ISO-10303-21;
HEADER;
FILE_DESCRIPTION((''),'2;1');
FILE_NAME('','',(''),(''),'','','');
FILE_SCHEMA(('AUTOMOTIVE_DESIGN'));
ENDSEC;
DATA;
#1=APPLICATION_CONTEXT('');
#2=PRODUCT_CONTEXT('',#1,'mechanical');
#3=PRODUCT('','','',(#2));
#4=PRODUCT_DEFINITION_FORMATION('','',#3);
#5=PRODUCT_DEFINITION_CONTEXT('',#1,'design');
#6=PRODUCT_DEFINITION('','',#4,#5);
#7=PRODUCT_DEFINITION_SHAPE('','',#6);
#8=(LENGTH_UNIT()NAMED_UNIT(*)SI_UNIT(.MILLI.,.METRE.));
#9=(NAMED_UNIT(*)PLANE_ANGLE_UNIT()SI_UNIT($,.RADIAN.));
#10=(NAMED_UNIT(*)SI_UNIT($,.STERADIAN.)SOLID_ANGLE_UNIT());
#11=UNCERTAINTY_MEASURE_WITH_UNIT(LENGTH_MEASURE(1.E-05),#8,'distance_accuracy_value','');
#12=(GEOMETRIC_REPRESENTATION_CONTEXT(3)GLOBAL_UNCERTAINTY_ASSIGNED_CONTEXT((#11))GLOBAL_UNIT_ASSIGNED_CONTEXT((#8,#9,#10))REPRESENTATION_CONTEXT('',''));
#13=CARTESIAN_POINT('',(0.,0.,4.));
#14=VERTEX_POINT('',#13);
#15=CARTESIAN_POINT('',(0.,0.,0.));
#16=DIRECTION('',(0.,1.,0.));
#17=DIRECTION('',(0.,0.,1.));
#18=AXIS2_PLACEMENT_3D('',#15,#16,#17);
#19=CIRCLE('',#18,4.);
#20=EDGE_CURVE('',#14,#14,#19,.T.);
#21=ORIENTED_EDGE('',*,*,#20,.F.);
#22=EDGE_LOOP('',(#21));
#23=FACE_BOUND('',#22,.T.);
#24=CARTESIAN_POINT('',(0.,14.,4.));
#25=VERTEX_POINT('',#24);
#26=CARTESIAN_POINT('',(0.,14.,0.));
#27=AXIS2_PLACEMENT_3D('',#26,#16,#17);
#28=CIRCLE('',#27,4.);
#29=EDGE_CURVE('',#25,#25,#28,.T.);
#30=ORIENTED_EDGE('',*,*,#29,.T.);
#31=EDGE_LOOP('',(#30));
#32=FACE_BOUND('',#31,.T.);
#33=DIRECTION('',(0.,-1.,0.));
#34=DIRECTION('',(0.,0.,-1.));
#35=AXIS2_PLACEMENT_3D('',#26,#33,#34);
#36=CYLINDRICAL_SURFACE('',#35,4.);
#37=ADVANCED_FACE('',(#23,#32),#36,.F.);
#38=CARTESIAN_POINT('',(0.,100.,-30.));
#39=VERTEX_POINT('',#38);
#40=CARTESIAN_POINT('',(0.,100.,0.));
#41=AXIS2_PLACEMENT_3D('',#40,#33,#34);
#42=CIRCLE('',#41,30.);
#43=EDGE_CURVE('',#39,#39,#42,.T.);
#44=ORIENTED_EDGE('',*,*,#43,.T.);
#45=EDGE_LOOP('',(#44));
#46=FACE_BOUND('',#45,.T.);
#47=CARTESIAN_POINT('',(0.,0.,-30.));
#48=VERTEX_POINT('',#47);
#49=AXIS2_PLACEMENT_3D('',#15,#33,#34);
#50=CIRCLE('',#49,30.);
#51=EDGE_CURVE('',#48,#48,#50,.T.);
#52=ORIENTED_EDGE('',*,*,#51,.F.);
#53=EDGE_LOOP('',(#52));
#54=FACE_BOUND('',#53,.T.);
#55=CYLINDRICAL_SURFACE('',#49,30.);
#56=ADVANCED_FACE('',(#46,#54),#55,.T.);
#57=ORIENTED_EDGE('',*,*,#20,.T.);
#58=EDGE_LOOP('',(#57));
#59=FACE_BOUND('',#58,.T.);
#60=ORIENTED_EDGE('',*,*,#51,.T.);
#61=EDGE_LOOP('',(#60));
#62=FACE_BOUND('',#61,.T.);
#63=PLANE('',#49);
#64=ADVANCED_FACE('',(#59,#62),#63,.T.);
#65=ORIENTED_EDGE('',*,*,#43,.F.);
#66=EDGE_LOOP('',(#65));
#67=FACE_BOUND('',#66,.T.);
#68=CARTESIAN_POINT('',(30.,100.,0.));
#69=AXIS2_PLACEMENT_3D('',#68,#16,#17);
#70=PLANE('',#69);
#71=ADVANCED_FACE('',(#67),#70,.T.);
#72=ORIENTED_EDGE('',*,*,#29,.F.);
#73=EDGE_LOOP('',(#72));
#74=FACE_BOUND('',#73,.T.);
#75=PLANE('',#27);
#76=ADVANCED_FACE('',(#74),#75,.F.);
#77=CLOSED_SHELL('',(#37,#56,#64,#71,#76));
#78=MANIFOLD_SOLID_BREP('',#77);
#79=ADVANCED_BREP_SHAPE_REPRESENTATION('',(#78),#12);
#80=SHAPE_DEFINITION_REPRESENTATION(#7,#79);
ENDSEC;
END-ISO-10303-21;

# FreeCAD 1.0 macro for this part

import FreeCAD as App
import Part
import Sketcher
from FreeCAD import Vector

doc = App.newDocument("Part")
body = doc.addObject("PartDesign::Body", "Body")

# Sketch on XY plane
sketch1 = body.newObject("Sketcher::SketchObject", "Sketch")
sketch1.AttachmentSupport = (doc.getObject("XY_Plane"), [""])
sketch1.MapMode = "FlatFace"
sketch1.addGeometry(Part.LineSegment(Vector(0, 100, 0), Vector(0, 0, 0)), False)
sketch1.addGeometry(Part.LineSegment(Vector(0, 0, 0), Vector(30, 0, 0)), False)
sketch1.addGeometry(Part.LineSegment(Vector(30, 0, 0), Vector(30, 100, 0)), False)
sketch1.addGeometry(Part.LineSegment(Vector(30, 100, 0), Vector(0, 100, 0)), False)
sketch1.addConstraint(Sketcher.Constraint("Coincident", 0, 2, 1, 1))
sketch1.addConstraint(Sketcher.Constraint("Coincident", 1, 2, 2, 1))
sketch1.addConstraint(Sketcher.Constraint("Coincident", 2, 2, 3, 1))
sketch1.addConstraint(Sketcher.Constraint("Coincident", 3, 2, 0, 1))
sketch1.addConstraint(Sketcher.Constraint("Vertical", 0))
sketch1.addConstraint(Sketcher.Constraint("Horizontal", 1))
sketch1.addConstraint(Sketcher.Constraint("Vertical", 2))
sketch1.addConstraint(Sketcher.Constraint("Horizontal", 3))
sketch1.addConstraint(Sketcher.Constraint("Coincident", 0, 2, -1, 1))
sketch1.addConstraint(Sketcher.Constraint("DistanceX", 1, 1, 1, 2, 30.0))
sketch1.addConstraint(Sketcher.Constraint("DistanceY", 0, 2, 0, 1, 100.0))
revolution = body.newObject("PartDesign::Revolution", "Revolution")
revolution.Profile = sketch1
revolution.ReferenceAxis = (sketch1, ["V_Axis"])
revolution.Angle = 360

# Sketch on XZ plane
sketch2 = body.newObject("Sketcher::SketchObject", "Sketch001")
sketch2.AttachmentSupport = (doc.getObject("XZ_Plane"), [""])
sketch2.MapMode = "FlatFace"
sketch2.addGeometry(Part.Circle(Vector(0, 0, 0), Vector(0, 0, 1), 4), False)
sketch2.addConstraint(Sketcher.Constraint("Coincident", 0, 3, -1, 1))
sketch2.addConstraint(Sketcher.Constraint("Diameter", 0, 8.0))
pocket1 = body.newObject("PartDesign::Pocket", "Pocket")
pocket1.Profile = sketch2
pocket1.Length = 14

doc.recompute()
